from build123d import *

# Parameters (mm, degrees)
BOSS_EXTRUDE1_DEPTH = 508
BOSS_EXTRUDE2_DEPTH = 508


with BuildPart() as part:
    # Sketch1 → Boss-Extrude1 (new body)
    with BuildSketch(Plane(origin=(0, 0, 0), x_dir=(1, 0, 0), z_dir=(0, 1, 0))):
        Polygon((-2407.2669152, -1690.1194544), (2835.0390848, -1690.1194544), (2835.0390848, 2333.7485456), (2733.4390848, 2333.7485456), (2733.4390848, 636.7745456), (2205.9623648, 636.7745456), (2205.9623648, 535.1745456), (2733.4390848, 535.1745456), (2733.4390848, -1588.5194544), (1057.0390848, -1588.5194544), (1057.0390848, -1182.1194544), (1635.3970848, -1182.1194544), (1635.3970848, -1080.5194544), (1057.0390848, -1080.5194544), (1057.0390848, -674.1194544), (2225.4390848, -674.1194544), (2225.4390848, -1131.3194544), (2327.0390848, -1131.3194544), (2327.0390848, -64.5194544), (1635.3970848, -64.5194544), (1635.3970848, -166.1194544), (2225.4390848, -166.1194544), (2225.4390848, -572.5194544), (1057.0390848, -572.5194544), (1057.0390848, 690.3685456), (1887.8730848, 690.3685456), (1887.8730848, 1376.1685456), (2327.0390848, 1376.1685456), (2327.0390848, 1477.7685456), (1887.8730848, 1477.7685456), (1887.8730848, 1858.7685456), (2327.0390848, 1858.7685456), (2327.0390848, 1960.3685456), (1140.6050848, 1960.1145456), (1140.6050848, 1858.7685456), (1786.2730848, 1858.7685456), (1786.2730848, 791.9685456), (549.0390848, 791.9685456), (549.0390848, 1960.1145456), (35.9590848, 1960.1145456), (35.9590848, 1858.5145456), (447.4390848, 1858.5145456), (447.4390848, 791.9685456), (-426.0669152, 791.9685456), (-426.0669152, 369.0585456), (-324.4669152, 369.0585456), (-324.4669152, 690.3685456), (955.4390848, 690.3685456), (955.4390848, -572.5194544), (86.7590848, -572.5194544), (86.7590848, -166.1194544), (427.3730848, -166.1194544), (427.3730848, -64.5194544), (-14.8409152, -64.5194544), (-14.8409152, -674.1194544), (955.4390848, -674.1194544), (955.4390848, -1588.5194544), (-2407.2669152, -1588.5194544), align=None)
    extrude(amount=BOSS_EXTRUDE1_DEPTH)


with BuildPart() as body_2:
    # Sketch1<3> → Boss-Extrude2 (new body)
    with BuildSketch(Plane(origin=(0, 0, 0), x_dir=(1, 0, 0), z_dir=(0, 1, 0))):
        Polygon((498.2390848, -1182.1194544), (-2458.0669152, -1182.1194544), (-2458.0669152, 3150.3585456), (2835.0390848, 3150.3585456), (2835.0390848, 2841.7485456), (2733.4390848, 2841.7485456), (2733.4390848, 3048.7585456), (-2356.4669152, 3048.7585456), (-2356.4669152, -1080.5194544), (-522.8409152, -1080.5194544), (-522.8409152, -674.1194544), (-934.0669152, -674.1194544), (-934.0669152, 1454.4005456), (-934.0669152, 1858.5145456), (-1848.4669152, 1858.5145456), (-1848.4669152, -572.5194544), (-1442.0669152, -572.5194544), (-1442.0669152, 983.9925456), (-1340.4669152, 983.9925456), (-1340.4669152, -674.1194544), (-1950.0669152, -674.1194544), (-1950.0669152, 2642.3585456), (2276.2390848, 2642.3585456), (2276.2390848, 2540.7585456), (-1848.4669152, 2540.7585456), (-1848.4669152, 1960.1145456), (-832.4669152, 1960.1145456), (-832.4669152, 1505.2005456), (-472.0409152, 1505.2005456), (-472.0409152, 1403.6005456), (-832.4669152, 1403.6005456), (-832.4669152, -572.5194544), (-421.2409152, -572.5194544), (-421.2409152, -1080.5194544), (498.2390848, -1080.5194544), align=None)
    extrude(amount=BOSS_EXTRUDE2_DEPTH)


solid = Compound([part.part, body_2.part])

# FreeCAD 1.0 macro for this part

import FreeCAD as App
import Part
import Sketcher

V = App.Vector
Q = App.Units.Quantity


def add_polygon(sketch, points):
    """Adds a closed chain of lines whose ends are joined by coincident constraints."""
    first, n = sketch.GeometryCount, len(points)
    for a, b in zip(points, points[1:] + points[:1]):
        sketch.addGeometry(Part.LineSegment(App.Vector(*a, 0), App.Vector(*b, 0)), False)
    for i in range(n):
        sketch.addConstraint(Sketcher.Constraint("Coincident", first + i, 2, first + (i + 1) % n, 1))

doc = App.newDocument("Part")
body = doc.addObject("PartDesign::Body", "Body")

# Sketch on XZ plane
sketch1 = body.newObject("Sketcher::SketchObject", "Sketch")
sketch1.AttachmentSupport = (doc.getObject("XZ_Plane"), [""])
sketch1.MapMode = "FlatFace"
add_polygon(sketch1, [(-2407, 1690), (2835, 1690), (2835, -2334), (2733, -2334), (2733, -637), (2206, -637), (2206, -535), (2733, -535), (2733, 1589), (1057, 1589), (1057, 1182), (1635, 1182), (1635, 1081), (1057, 1081), (1057, 674), (2225, 674), (2225, 1131), (2327, 1131), (2327, 65), (1635, 65), (1635, 166), (2225, 166), (2225, 573), (1057, 573), (1057, -690), (1888, -690), (1888, -1376), (2327, -1376), (2327, -1478), (1888, -1478), (1888, -1859), (2327, -1859), (2327, -1960), (1141, -1960), (1141, -1859), (1786, -1859), (1786, -792), (549, -792), (549, -1960), (36, -1960), (36, -1859), (447, -1859), (447, -792), (-426, -792), (-426, -369), (-324, -369), (-324, -690), (955, -690), (955, 573), (87, 573), (87, 166), (427, 166), (427, 65), (-15, 65), (-15, 674), (955, 674), (955, 1589), (-2407, 1589)])  # lines 0-57
sketch1.addConstraint(Sketcher.Constraint("Horizontal", 0))
sketch1.addConstraint(Sketcher.Constraint("Vertical", 1))
sketch1.addConstraint(Sketcher.Constraint("Horizontal", 2))
sketch1.addConstraint(Sketcher.Constraint("Vertical", 3))
sketch1.addConstraint(Sketcher.Constraint("Horizontal", 4))
sketch1.addConstraint(Sketcher.Constraint("Vertical", 5))
sketch1.addConstraint(Sketcher.Constraint("Horizontal", 6))
sketch1.addConstraint(Sketcher.Constraint("Vertical", 7))
sketch1.addConstraint(Sketcher.Constraint("Horizontal", 8))
sketch1.addConstraint(Sketcher.Constraint("Vertical", 9))
sketch1.addConstraint(Sketcher.Constraint("Horizontal", 10))
sketch1.addConstraint(Sketcher.Constraint("Vertical", 11))
sketch1.addConstraint(Sketcher.Constraint("Horizontal", 12))
sketch1.addConstraint(Sketcher.Constraint("Vertical", 13))
sketch1.addConstraint(Sketcher.Constraint("Horizontal", 14))
sketch1.addConstraint(Sketcher.Constraint("Vertical", 15))
sketch1.addConstraint(Sketcher.Constraint("Horizontal", 16))
sketch1.addConstraint(Sketcher.Constraint("Vertical", 17))
sketch1.addConstraint(Sketcher.Constraint("Horizontal", 18))
sketch1.addConstraint(Sketcher.Constraint("Vertical", 19))
sketch1.addConstraint(Sketcher.Constraint("Horizontal", 20))
sketch1.addConstraint(Sketcher.Constraint("Vertical", 21))
sketch1.addConstraint(Sketcher.Constraint("Horizontal", 22))
sketch1.addConstraint(Sketcher.Constraint("Vertical", 23))
sketch1.addConstraint(Sketcher.Constraint("Horizontal", 24))
sketch1.addConstraint(Sketcher.Constraint("Vertical", 25))
sketch1.addConstraint(Sketcher.Constraint("Horizontal", 26))
sketch1.addConstraint(Sketcher.Constraint("Vertical", 27))
sketch1.addConstraint(Sketcher.Constraint("Horizontal", 28))
sketch1.addConstraint(Sketcher.Constraint("Vertical", 29))
sketch1.addConstraint(Sketcher.Constraint("Horizontal", 30))
sketch1.addConstraint(Sketcher.Constraint("Vertical", 31))
sketch1.addConstraint(Sketcher.Constraint("Vertical", 33))
sketch1.addConstraint(Sketcher.Constraint("Horizontal", 34))
sketch1.addConstraint(Sketcher.Constraint("Vertical", 35))
sketch1.addConstraint(Sketcher.Constraint("Horizontal", 36))
sketch1.addConstraint(Sketcher.Constraint("Vertical", 37))
sketch1.addConstraint(Sketcher.Constraint("Horizontal", 38))
sketch1.addConstraint(Sketcher.Constraint("Vertical", 39))
sketch1.addConstraint(Sketcher.Constraint("Horizontal", 40))
sketch1.addConstraint(Sketcher.Constraint("Vertical", 41))
sketch1.addConstraint(Sketcher.Constraint("Horizontal", 42))
sketch1.addConstraint(Sketcher.Constraint("Vertical", 43))
sketch1.addConstraint(Sketcher.Constraint("Horizontal", 44))
sketch1.addConstraint(Sketcher.Constraint("Vertical", 45))
sketch1.addConstraint(Sketcher.Constraint("Horizontal", 46))
sketch1.addConstraint(Sketcher.Constraint("Vertical", 47))
sketch1.addConstraint(Sketcher.Constraint("Horizontal", 48))
sketch1.addConstraint(Sketcher.Constraint("Vertical", 49))
sketch1.addConstraint(Sketcher.Constraint("Horizontal", 50))
sketch1.addConstraint(Sketcher.Constraint("Vertical", 51))
sketch1.addConstraint(Sketcher.Constraint("Horizontal", 52))
sketch1.addConstraint(Sketcher.Constraint("Vertical", 53))
sketch1.addConstraint(Sketcher.Constraint("Horizontal", 54))
sketch1.addConstraint(Sketcher.Constraint("Vertical", 55))
sketch1.addConstraint(Sketcher.Constraint("Horizontal", 56))
sketch1.addConstraint(Sketcher.Constraint("Vertical", 57))
sketch1.addConstraint(Sketcher.Constraint("Horizontal", 30, 2, 33, 2))
sketch1.addConstraint(Sketcher.Constraint("Horizontal", 32, 2, 37, 2))
sketch1.addConstraint(Sketcher.Constraint("Horizontal", 36, 2, 41, 2))
sketch1.addConstraint(Sketcher.Constraint("Horizontal", 24, 2, 45, 2))
sketch1.addConstraint(Sketcher.Constraint("Horizontal", 22, 2, 47, 2))
sketch1.addConstraint(Sketcher.Constraint("Horizontal", 20, 2, 49, 2))
sketch1.addConstraint(Sketcher.Constraint("Horizontal", 18, 2, 51, 2))
sketch1.addConstraint(Sketcher.Constraint("Horizontal", 14, 2, 53, 2))
sketch1.addConstraint(Sketcher.Constraint("Horizontal", 8, 2, 55, 2))
sketch1.addConstraint(Sketcher.Constraint("Vertical", 3, 2, 6, 2))
sketch1.addConstraint(Sketcher.Constraint("Vertical", 9, 2, 12, 2))
sketch1.addConstraint(Sketcher.Constraint("Vertical", 11, 2, 18, 2))
sketch1.addConstraint(Sketcher.Constraint("Vertical", 15, 2, 20, 2))
sketch1.addConstraint(Sketcher.Constraint("Vertical", 13, 2, 22, 2))
sketch1.addConstraint(Sketcher.Constraint("Vertical", 17, 2, 26, 2))
sketch1.addConstraint(Sketcher.Constraint("Vertical", 25, 2, 28, 2))
sketch1.addConstraint(Sketcher.Constraint("Vertical", 27, 2, 30, 2))
sketch1.addConstraint(Sketcher.Constraint("Vertical", 47, 2, 54, 2))
sketch1.addConstraint(Sketcher.Constraint("Equal", 2, 16))
sketch1.addConstraint(Sketcher.Constraint("Equal", 16, 44))
sketch1.addConstraint(Sketcher.Constraint("Equal", 44, 5))
sketch1.addConstraint(Sketcher.Constraint("Equal", 5, 11))
sketch1.addConstraint(Sketcher.Constraint("Equal", 9, 13))
sketch1.addConstraint(Sketcher.Constraint("Equal", 11, 19))
sketch1.addConstraint(Sketcher.Constraint("Equal", 13, 21))
sketch1.addConstraint(Sketcher.Constraint("Equal", 19, 27))
sketch1.addConstraint(Sketcher.Constraint("Equal", 27, 31))
sketch1.addConstraint(Sketcher.Constraint("Equal", 17, 35))
sketch1.addConstraint(Sketcher.Constraint("Equal", 31, 39))
sketch1.addConstraint(Sketcher.Constraint("Equal", 51, 57))
sketch1.addConstraint(Sketcher.Constraint("DistanceX", 2, 2, 2, 1, Q("4 in")))
sketch1.addConstraint(Sketcher.Constraint("DistanceX", 8, 2, 8, 1, Q("66 in")))
sketch1.addConstraint(Sketcher.Constraint("DistanceX", 14, 1, 14, 2, Q("46 in")))
sketch1.addConstraint(Sketcher.Constraint("DistanceY", 9, 2, 9, 1, Q("16 in")))
sketch1.addConstraint(Sketcher.Constraint("DistanceY", 15, 1, 15, 2, Q("18 in")))
sketch1.addConstraint(Sketcher.Constraint("DistanceY", 17, 2, 17, 1, Q("42 in")))
sketch1.addConstraint(Sketcher.Constraint("DistanceY", 25, 2, 25, 1, Q("27 in")))
sketch1.addConstraint(Sketcher.Constraint("DistanceY", 29, 2, 29, 1, Q("15 in")))
sketch1.addConstraint(Sketcher.Constraint("DistanceX", 38, 2, 38, 1, Q("20.2 in")))
sketch1.addConstraint(Sketcher.Constraint("DistanceX", 40, 1, 40, 2, Q("16.2 in")))
sketch1.addConstraint(Sketcher.Constraint("DistanceX", 48, 2, 48, 1, Q("34.2 in")))
sketch1.addConstraint(Sketcher.Constraint("DistanceX", 54, 1, 54, 2, Q("38.2 in")))
sketch1.addConstraint(Sketcher.Constraint("DistanceX", 34, 2, 29, 2, Q("4 in")))
sketch1.addConstraint(Sketcher.Constraint("DistanceX", 36, 2, 23, 2, Q("20 in")))
sketch1.addConstraint(Sketcher.Constraint("DistanceX", 46, 2, 23, 2, Q("4 in")))
sketch1.addConstraint(Sketcher.Constraint("DistanceX", 56, 2, 43, 2, Q("78 in")))
sketch1.addConstraint(Sketcher.Constraint("DistanceX", 0, 1, 0, 2, Q("206.39 in")))
sketch1.addConstraint(Sketcher.Constraint("DistanceX", 10, 1, 10, 2, Q("22.77 in")))
sketch1.addConstraint(Sketcher.Constraint("DistanceX", 24, 1, 24, 2, Q("32.71 in")))
sketch1.addConstraint(Sketcher.Constraint("DistanceX", 34, 1, 34, 2, Q("25.42 in")))
sketch1.addConstraint(Sketcher.Constraint("DistanceX", 50, 1, 50, 2, Q("13.41 in")))
sketch1.addConstraint(Sketcher.Constraint("DistanceY", 1, 2, 1, 1, Q("158.42 in")))
sketch1.addConstraint(Sketcher.Constraint("DistanceY", 3, 1, 3, 2, Q("66.81 in")))
sketch1.addConstraint(Sketcher.Constraint("DistanceY", 23, 2, 23, 1, Q("49.72 in")))
sketch1.addConstraint(Sketcher.Constraint("DistanceY", 33, 1, 33, 2, Q("3.99 in")))
sketch1.addConstraint(Sketcher.Constraint("DistanceY", 43, 1, 43, 2, Q("16.65 in")))
sketch1.addConstraint(Sketcher.Constraint("DistanceX", 4, 2, 4, 1, Q("20.7668 in")))
sketch1.addConstraint(Sketcher.Constraint("DistanceX", -1, 1, 0, 2, Q("2835.039085 mm")))
sketch1.addConstraint(Sketcher.Constraint("DistanceY", -1, 1, 0, 2, Q("1690.119454 mm")))
pad1 = body.newObject("PartDesign::Pad", "Pad")
pad1.Profile = sketch1
pad1.Length = Q("20 in")
pad1.Reversed = True
body2 = doc.addObject("PartDesign::Body", "Body001")

# Sketch on XZ plane
sketch2 = body2.newObject("Sketcher::SketchObject", "Sketch001")
sketch2.AttachmentSupport = (doc.getObject("XZ_Plane001"), [""])
sketch2.MapMode = "FlatFace"
add_polygon(sketch2, [(-2458, 1182), (498, 1182), (498, 1081), (-421, 1081), (-421, 573), (-832, 573), (-832, -1404), (-472, -1404), (-472, -1505), (-832, -1505), (-832, -1960), (-1848, -1960), (-1848, -2541), (2276, -2541), (2276, -2642), (-1950, -2642), (-1950, 674), (-1340, 674), (-1340, -984), (-1442, -984), (-1442, 573), (-1848, 573), (-1848, -1859), (-934, -1859), (-934, 674), (-523, 674), (-523, 1081), (-2356, 1081), (-2356, -3049), (2733, -3049), (2733, -2842), (2835, -2842), (2835, -3150), (-2458, -3150)])  # lines 0-33
sketch2.addConstraint(Sketcher.Constraint("Horizontal", 0))
sketch2.addConstraint(Sketcher.Constraint("Vertical", 1))
sketch2.addConstraint(Sketcher.Constraint("Horizontal", 2))
sketch2.addConstraint(Sketcher.Constraint("Vertical", 3))
sketch2.addConstraint(Sketcher.Constraint("Horizontal", 4))
sketch2.addConstraint(Sketcher.Constraint("Vertical", 5))
sketch2.addConstraint(Sketcher.Constraint("Horizontal", 6))
sketch2.addConstraint(Sketcher.Constraint("Vertical", 7))
sketch2.addConstraint(Sketcher.Constraint("Horizontal", 8))
sketch2.addConstraint(Sketcher.Constraint("Vertical", 9))
sketch2.addConstraint(Sketcher.Constraint("Horizontal", 10))
sketch2.addConstraint(Sketcher.Constraint("Vertical", 11))
sketch2.addConstraint(Sketcher.Constraint("Horizontal", 12))
sketch2.addConstraint(Sketcher.Constraint("Vertical", 13))
sketch2.addConstraint(Sketcher.Constraint("Horizontal", 14))
sketch2.addConstraint(Sketcher.Constraint("Vertical", 15))
sketch2.addConstraint(Sketcher.Constraint("Horizontal", 16))
sketch2.addConstraint(Sketcher.Constraint("Vertical", 17))
sketch2.addConstraint(Sketcher.Constraint("Horizontal", 18))
sketch2.addConstraint(Sketcher.Constraint("Vertical", 19))
sketch2.addConstraint(Sketcher.Constraint("Horizontal", 20))
sketch2.addConstraint(Sketcher.Constraint("Vertical", 21))
sketch2.addConstraint(Sketcher.Constraint("Horizontal", 22))
sketch2.addConstraint(Sketcher.Constraint("Vertical", 23))
sketch2.addConstraint(Sketcher.Constraint("Horizontal", 24))
sketch2.addConstraint(Sketcher.Constraint("Vertical", 25))
sketch2.addConstraint(Sketcher.Constraint("Horizontal", 26))
sketch2.addConstraint(Sketcher.Constraint("Vertical", 27))
sketch2.addConstraint(Sketcher.Constraint("Horizontal", 28))
sketch2.addConstraint(Sketcher.Constraint("Vertical", 29))
sketch2.addConstraint(Sketcher.Constraint("Horizontal", 30))
sketch2.addConstraint(Sketcher.Constraint("Vertical", 31))
sketch2.addConstraint(Sketcher.Constraint("Horizontal", 32))
sketch2.addConstraint(Sketcher.Constraint("Vertical", 33))
sketch2.addConstraint(Sketcher.Constraint("Horizontal", 4, 2, 19, 2))
sketch2.addConstraint(Sketcher.Constraint("Horizontal", 16, 2, 23, 2))
sketch2.addConstraint(Sketcher.Constraint("Horizontal", 2, 2, 25, 2))
sketch2.addConstraint(Sketcher.Constraint("Vertical", 5, 2, 8, 2))
sketch2.addConstraint(Sketcher.Constraint("Vertical", 11, 2, 20, 2))
sketch2.addConstraint(Sketcher.Constraint("Equal", 4, 24))
sketch2.addConstraint(Sketcher.Constraint("Equal", 18, 30))
sketch2.addConstraint(Sketcher.Constraint("Equal", 30, 1))
sketch2.addConstraint(Sketcher.Constraint("Equal", 1, 7))
sketch2.addConstraint(Sketcher.Constraint("Equal", 7, 13))
sketch2.addConstraint(Sketcher.Constraint("Equal", 20, 25))
sketch2.addConstraint(Sketcher.Constraint("DistanceX", 10, 2, 10, 1, Q("40 in")))
sketch2.addConstraint(Sketcher.Constraint("DistanceX", 16, 1, 16, 2, Q("24 in")))
sketch2.addConstraint(Sketcher.Constraint("DistanceX", 18, 2, 18, 1, Q("4 in")))
sketch2.addConstraint(Sketcher.Constraint("DistanceX", 20, 2, 20, 1, Q("16 in")))
sketch2.addConstraint(Sketcher.Constraint("DistanceX", 22, 1, 22, 2, Q("36 in")))
sketch2.addConstraint(Sketcher.Constraint("DistanceY", 3, 2, 3, 1, Q("20 in")))
sketch2.addConstraint(Sketcher.Constraint("DistanceX", 2, 2, 2, 1, Q("36.2 in")))
sketch2.addConstraint(Sketcher.Constraint("DistanceY", 5, 2, 5, 1, Q("77.8 in")))
sketch2.addConstraint(Sketcher.Constraint("DistanceX", 6, 2, 3, 2, Q("2 in")))
sketch2.addConstraint(Sketcher.Constraint("DistanceY", 10, 2, 21, 2, Q("4 in")))
sketch2.addConstraint(Sketcher.Constraint("DistanceX", 26, 2, 15, 2, Q("16 in")))
sketch2.addConstraint(Sketcher.Constraint("DistanceY", 27, 2, 14, 2, Q("16 in")))
sketch2.addConstraint(Sketcher.Constraint("DistanceX", 13, 2, 28, 2, Q("18 in")))
sketch2.addConstraint(Sketcher.Constraint("DistanceY", 31, 2, 28, 2, Q("4 in")))
sketch2.addConstraint(Sketcher.Constraint("DistanceX", 32, 2, 27, 2, Q("4 in")))
sketch2.addConstraint(Sketcher.Constraint("DistanceX", 0, 1, 0, 2, Q("116.39 in")))
sketch2.addConstraint(Sketcher.Constraint("DistanceX", 12, 1, 12, 2, Q("162.39 in")))
sketch2.addConstraint(Sketcher.Constraint("DistanceY", 9, 2, 9, 1, Q("17.91 in")))
sketch2.addConstraint(Sketcher.Constraint("DistanceY", 11, 2, 11, 1, Q("22.86 in")))
sketch2.addConstraint(Sketcher.Constraint("DistanceY", 17, 2, 17, 1, Q("65.28 in")))
sketch2.addConstraint(Sketcher.Constraint("DistanceY", 29, 1, 29, 2, Q("8.15 in")))
sketch2.addConstraint(Sketcher.Constraint("DistanceX", -1, 1, 0, 2, Q("498.239085 mm")))
sketch2.addConstraint(Sketcher.Constraint("DistanceY", -1, 1, 0, 2, Q("1182.119454 mm")))
pad2 = body2.newObject("PartDesign::Pad", "Pad001")
pad2.Profile = sketch2
pad2.Length = Q("20 in")
pad2.Reversed = True

doc.recompute()
